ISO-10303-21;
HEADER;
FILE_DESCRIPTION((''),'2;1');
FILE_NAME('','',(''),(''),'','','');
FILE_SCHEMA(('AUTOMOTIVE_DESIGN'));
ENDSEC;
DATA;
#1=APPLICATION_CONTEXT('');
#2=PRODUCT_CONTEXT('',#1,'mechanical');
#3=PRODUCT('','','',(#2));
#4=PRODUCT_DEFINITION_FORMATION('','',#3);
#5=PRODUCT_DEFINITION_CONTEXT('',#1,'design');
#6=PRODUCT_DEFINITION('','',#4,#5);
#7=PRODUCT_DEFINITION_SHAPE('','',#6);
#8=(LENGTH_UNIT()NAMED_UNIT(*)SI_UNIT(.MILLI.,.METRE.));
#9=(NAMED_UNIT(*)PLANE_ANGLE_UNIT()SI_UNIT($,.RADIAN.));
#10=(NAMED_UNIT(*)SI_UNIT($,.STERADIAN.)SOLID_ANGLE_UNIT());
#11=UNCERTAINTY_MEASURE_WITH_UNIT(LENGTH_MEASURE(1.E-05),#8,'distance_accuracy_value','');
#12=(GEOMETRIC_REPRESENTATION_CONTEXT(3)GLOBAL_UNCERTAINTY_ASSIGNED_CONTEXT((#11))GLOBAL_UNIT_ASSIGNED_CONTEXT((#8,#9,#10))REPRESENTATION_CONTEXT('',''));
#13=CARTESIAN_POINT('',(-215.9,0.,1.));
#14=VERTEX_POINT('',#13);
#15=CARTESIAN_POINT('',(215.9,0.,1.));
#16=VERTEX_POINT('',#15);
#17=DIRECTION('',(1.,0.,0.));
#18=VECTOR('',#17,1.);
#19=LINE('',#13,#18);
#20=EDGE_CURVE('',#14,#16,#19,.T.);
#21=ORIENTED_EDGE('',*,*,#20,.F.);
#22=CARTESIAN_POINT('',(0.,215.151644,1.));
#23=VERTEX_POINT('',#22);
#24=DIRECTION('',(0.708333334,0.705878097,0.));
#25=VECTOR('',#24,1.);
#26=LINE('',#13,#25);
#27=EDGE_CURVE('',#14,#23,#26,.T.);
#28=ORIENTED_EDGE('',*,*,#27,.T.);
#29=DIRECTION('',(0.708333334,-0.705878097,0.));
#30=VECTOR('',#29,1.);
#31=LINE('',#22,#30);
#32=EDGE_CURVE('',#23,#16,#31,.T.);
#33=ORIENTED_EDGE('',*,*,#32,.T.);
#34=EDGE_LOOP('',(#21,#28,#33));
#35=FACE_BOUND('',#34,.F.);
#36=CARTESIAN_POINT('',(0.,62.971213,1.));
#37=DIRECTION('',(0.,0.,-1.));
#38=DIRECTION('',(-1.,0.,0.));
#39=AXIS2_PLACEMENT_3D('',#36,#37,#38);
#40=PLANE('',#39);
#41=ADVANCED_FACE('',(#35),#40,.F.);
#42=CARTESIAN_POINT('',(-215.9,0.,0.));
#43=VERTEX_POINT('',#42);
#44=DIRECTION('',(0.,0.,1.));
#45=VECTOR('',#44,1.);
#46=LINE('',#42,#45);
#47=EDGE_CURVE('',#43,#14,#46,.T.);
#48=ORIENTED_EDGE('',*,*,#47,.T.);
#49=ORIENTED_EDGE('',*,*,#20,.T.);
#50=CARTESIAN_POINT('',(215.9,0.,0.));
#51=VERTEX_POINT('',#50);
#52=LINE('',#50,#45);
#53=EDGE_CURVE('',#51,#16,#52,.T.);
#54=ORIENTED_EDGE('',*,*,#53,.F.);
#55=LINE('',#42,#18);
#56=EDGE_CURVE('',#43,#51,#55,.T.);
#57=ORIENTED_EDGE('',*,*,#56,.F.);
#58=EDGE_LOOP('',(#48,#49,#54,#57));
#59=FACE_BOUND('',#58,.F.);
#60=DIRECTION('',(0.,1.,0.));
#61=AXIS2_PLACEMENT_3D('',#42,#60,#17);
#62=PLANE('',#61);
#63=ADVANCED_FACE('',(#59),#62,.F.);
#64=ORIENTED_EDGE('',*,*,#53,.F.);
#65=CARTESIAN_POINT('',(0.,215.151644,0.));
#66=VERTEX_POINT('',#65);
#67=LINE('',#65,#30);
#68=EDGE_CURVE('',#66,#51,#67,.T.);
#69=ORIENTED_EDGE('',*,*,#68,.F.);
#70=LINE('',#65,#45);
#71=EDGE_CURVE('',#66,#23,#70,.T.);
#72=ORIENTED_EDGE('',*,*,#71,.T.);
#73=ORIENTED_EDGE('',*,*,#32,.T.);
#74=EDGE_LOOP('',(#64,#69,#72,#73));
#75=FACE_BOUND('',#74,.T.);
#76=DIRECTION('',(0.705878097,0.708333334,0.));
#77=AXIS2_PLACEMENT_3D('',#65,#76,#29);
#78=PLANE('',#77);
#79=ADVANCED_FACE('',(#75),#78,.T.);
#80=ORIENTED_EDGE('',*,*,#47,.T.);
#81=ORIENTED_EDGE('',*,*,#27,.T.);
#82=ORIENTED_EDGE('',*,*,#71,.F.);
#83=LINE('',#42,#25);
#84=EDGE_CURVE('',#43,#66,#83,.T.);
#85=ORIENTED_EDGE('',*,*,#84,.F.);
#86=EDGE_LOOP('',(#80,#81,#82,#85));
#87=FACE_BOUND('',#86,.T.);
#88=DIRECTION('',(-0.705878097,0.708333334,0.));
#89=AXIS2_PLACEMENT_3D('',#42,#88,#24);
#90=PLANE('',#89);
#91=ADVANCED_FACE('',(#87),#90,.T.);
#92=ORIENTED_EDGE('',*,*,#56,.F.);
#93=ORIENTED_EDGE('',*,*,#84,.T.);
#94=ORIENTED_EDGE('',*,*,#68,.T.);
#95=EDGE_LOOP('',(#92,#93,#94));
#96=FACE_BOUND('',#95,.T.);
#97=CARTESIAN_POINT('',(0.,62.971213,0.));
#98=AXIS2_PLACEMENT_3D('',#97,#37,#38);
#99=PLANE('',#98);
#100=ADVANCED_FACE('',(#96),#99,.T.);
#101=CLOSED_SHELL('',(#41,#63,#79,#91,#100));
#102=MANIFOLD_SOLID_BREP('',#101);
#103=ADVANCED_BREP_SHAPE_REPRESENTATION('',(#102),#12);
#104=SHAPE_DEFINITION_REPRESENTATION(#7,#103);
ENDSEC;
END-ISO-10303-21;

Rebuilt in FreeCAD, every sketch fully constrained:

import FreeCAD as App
import Part
import Sketcher

V = App.Vector
Q = App.Units.Quantity

doc = App.newDocument("Part")
body = doc.addObject("PartDesign::Body", "Body")

# Sketch on XY plane
sketch1 = doc.addObject("Sketcher::SketchObject", "Sketch")
body.addObject(sketch1)
sketch1.AttachmentSupport = (doc.XY_Plane, [""])
sketch1.MapMode = "FlatFace"
sketch1.addGeometry(Part.LineSegment(V(0, 215, 0), V(-216, 0, 0)), False)
sketch1.addGeometry(Part.LineSegment(V(-216, 0, 0), V(216, 0, 0)), False)
sketch1.addGeometry(Part.LineSegment(V(216, 0, 0), V(0, 215, 0)), False)
sketch1.addConstraint(Sketcher.Constraint("Coincident", 0, 2, 1, 1))
sketch1.addConstraint(Sketcher.Constraint("Coincident", 1, 2, 2, 1))
sketch1.addConstraint(Sketcher.Constraint("Coincident", 2, 2, 0, 1))
sketch1.addConstraint(Sketcher.Constraint("Horizontal", 1))
sketch1.addConstraint(Sketcher.Constraint("Symmetric", 0, 2, 1, 2, -1, 1))
sketch1.addConstraint(Sketcher.Constraint("PointOnObject", 2, 2, -2))
sketch1.addConstraint(Sketcher.Constraint("DistanceX", 1, 1, 1, 2, Q("17 in")))
sketch1.addConstraint(Sketcher.Constraint("Distance", 0, Q("12 in")))
pad1 = doc.addObject("PartDesign::Pad", "Pad")
body.addObject(pad1)
pad1.Profile = sketch1
pad1.Length = 1

doc.recompute()
